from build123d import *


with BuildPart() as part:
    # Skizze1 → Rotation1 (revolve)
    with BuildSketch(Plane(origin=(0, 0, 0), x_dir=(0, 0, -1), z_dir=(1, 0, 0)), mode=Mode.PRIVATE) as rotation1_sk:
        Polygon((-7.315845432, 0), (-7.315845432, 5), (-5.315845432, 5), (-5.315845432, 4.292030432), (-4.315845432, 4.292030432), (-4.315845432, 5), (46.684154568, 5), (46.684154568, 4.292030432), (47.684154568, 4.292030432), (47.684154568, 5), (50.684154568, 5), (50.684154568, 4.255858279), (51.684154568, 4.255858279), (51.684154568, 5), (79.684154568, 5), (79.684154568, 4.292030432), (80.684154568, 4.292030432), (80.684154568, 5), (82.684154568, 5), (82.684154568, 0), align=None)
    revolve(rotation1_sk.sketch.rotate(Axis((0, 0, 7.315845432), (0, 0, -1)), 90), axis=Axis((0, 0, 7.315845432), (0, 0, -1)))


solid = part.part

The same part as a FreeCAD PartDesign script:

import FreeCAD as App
import Part
import Sketcher

V = App.Vector
Q = App.Units.Quantity

doc = App.newDocument("Part")
body = doc.addObject("PartDesign::Body", "Body")

sketch1 = body.newObject("Sketcher::SketchObject", "Sketch")
sketch1.AttachmentSupport = (doc.getObject("YZ_Plane"), [""])
sketch1.MapMode = "FlatFace"
sketch1.addGeometry([
    Part.LineSegment(V(5, 7.3, 0), V(0, 7.3, 0)),
    Part.LineSegment(V(0, 7.3, 0), V(0, -82.7, 0)),
    Part.LineSegment(V(0, -82.7, 0), V(5, -82.7, 0)),
    Part.LineSegment(V(5, -82.7, 0), V(5, -80.7, 0)),
    Part.LineSegment(V(5, -80.7, 0), V(4.3, -80.7, 0)),
    Part.LineSegment(V(4.3, -80.7, 0), V(4.3, -79.7, 0)),
    Part.LineSegment(V(4.3, -79.7, 0), V(5, -79.7, 0)),
    Part.LineSegment(V(5, -79.7, 0), V(5, -51.7, 0)),
    Part.LineSegment(V(5, -51.7, 0), V(4.3, -51.7, 0)),
    Part.LineSegment(V(4.3, -51.7, 0), V(4.3, -50.7, 0)),
    Part.LineSegment(V(4.3, -50.7, 0), V(5, -50.7, 0)),
    Part.LineSegment(V(5, -50.7, 0), V(5, -47.7, 0)),
    Part.LineSegment(V(5, -47.7, 0), V(4.3, -47.7, 0)),
    Part.LineSegment(V(4.3, -47.7, 0), V(4.3, -46.7, 0)),
    Part.LineSegment(V(4.3, -46.7, 0), V(5, -46.7, 0)),
    Part.LineSegment(V(5, -46.7, 0), V(5, 4.3, 0)),
    Part.LineSegment(V(5, 4.3, 0), V(4.3, 4.3, 0)),
    Part.LineSegment(V(4.3, 4.3, 0), V(4.3, 5.3, 0)),
    Part.LineSegment(V(4.3, 5.3, 0), V(5, 5.3, 0)),
    Part.LineSegment(V(5, 5.3, 0), V(5, 7.3, 0)),
], False)
sketch1.addConstraint([
    Sketcher.Constraint("Coincident", 0, 2, 1, 1),
    Sketcher.Constraint("Coincident", 1, 2, 2, 1),
    Sketcher.Constraint("Coincident", 2, 2, 3, 1),
    Sketcher.Constraint("Coincident", 3, 2, 4, 1),
    Sketcher.Constraint("Coincident", 4, 2, 5, 1),
    Sketcher.Constraint("Coincident", 5, 2, 6, 1),
    Sketcher.Constraint("Coincident", 6, 2, 7, 1),
    Sketcher.Constraint("Coincident", 7, 2, 8, 1),
    Sketcher.Constraint("Coincident", 8, 2, 9, 1),
    Sketcher.Constraint("Coincident", 9, 2, 10, 1),
    Sketcher.Constraint("Coincident", 10, 2, 11, 1),
    Sketcher.Constraint("Coincident", 11, 2, 12, 1),
    Sketcher.Constraint("Coincident", 12, 2, 13, 1),
    Sketcher.Constraint("Coincident", 13, 2, 14, 1),
    Sketcher.Constraint("Coincident", 14, 2, 15, 1),
    Sketcher.Constraint("Coincident", 15, 2, 16, 1),
    Sketcher.Constraint("Coincident", 16, 2, 17, 1),
    Sketcher.Constraint("Coincident", 17, 2, 18, 1),
    Sketcher.Constraint("Coincident", 18, 2, 19, 1),
    Sketcher.Constraint("Coincident", 19, 2, 0, 1),
    Sketcher.Constraint("Horizontal", 0),
    Sketcher.Constraint("Vertical", 1),
    Sketcher.Constraint("Horizontal", 2),
    Sketcher.Constraint("Vertical", 3),
    Sketcher.Constraint("Horizontal", 4),
    Sketcher.Constraint("Vertical", 5),
    Sketcher.Constraint("Horizontal", 6),
    Sketcher.Constraint("Vertical", 7),
    Sketcher.Constraint("Horizontal", 8),
    Sketcher.Constraint("Vertical", 9),
    Sketcher.Constraint("Horizontal", 10),
    Sketcher.Constraint("Vertical", 11),
    Sketcher.Constraint("Horizontal", 12),
    Sketcher.Constraint("Vertical", 13),
    Sketcher.Constraint("Horizontal", 14),
    Sketcher.Constraint("Vertical", 15),
    Sketcher.Constraint("Horizontal", 16),
    Sketcher.Constraint("Vertical", 17),
    Sketcher.Constraint("Horizontal", 18),
    Sketcher.Constraint("Vertical", 19),
    Sketcher.Constraint("PointOnObject", 0, 2, -2),
    Sketcher.Constraint("Vertical", 3, 2, 6, 2),
    Sketcher.Constraint("Vertical", 7, 2, 10, 2),
    Sketcher.Constraint("Vertical", 5, 2, 12, 2),
    Sketcher.Constraint("Vertical", 11, 2, 14, 2),
    Sketcher.Constraint("Vertical", 13, 2, 16, 2),
    Sketcher.Constraint("Vertical", 15, 2, 18, 2),
    Sketcher.Constraint("Equal", 5, 9),
    Sketcher.Constraint("Equal", 9, 13),
    Sketcher.Constraint("Equal", 13, 17),
    Sketcher.Constraint("Equal", 3, 19),
    Sketcher.Constraint("DistanceX", 0, 2, 0, 1, Q("5 mm")),
    Sketcher.Constraint("DistanceY", 1, 2, 1, 1, Q("90 mm")),
    Sketcher.Constraint("DistanceY", 3, 1, 3, 2, Q("2 mm")),
    Sketcher.Constraint("DistanceY", 5, 1, 5, 2, Q("1 mm")),
    Sketcher.Constraint("DistanceY", 7, 1, 7, 2, Q("28 mm")),
    Sketcher.Constraint("DistanceY", 11, 1, 11, 2, Q("3 mm")),
    Sketcher.Constraint("DistanceX", 4, 2, 4, 1, Q("0.70797 mm")),
    Sketcher.Constraint("DistanceX", 8, 2, 8, 1, Q("0.744142 mm")),
    Sketcher.Constraint("DistanceY", -1, 1, 0, 2, Q("7.315845 mm")),
])
revolution = body.newObject("PartDesign::Revolution", "Revolution")
revolution.Profile = sketch1
revolution.ReferenceAxis = (sketch1, ["V_Axis"])
revolution.Angle = 360

doc.recompute()
